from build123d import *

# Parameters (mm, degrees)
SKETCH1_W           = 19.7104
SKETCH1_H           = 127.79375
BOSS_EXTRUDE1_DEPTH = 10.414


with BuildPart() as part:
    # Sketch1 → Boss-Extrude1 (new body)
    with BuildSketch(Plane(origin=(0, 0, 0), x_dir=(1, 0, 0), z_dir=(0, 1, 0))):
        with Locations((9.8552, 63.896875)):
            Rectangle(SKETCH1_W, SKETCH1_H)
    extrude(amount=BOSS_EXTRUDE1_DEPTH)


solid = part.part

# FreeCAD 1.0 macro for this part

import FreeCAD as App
import Part
import Sketcher

V = App.Vector
Q = App.Units.Quantity

doc = App.newDocument("Part")
body = doc.addObject("PartDesign::Body", "Body")

sketch1 = doc.addObject("Sketcher::SketchObject", "Sketch")
body.addObject(sketch1)
sketch1.AttachmentSupport = (doc.XZ_Plane, [""])
sketch1.MapMode = "FlatFace"
sketch1.addGeometry(Part.LineSegment(V(0, -128, 0), V(0, 0, 0)), False)
sketch1.addGeometry(Part.LineSegment(V(0, 0, 0), V(20, 0, 0)), False)
sketch1.addGeometry(Part.LineSegment(V(20, 0, 0), V(20, -128, 0)), False)
sketch1.addGeometry(Part.LineSegment(V(20, -128, 0), V(0, -128, 0)), False)
sketch1.addConstraint(Sketcher.Constraint("Coincident", 0, 2, 1, 1))
sketch1.addConstraint(Sketcher.Constraint("Coincident", 1, 2, 2, 1))
sketch1.addConstraint(Sketcher.Constraint("Coincident", 2, 2, 3, 1))
sketch1.addConstraint(Sketcher.Constraint("Coincident", 3, 2, 0, 1))
sketch1.addConstraint(Sketcher.Constraint("Vertical", 0))
sketch1.addConstraint(Sketcher.Constraint("Horizontal", 1))
sketch1.addConstraint(Sketcher.Constraint("Vertical", 2))
sketch1.addConstraint(Sketcher.Constraint("Horizontal", 3))
sketch1.addConstraint(Sketcher.Constraint("Coincident", 0, 2, -1, 1))
sketch1.addConstraint(Sketcher.Constraint("DistanceX", 1, 1, 1, 2, Q("0.776 in")))
sketch1.addConstraint(Sketcher.Constraint("DistanceY", 0, 1, 0, 2, Q("5.03125 in")))
pad1 = doc.addObject("PartDesign::Pad", "Pad")
body.addObject(pad1)
pad1.Profile = sketch1
pad1.Length = Q("0.41 in")
pad1.Reversed = True

doc.recompute()
